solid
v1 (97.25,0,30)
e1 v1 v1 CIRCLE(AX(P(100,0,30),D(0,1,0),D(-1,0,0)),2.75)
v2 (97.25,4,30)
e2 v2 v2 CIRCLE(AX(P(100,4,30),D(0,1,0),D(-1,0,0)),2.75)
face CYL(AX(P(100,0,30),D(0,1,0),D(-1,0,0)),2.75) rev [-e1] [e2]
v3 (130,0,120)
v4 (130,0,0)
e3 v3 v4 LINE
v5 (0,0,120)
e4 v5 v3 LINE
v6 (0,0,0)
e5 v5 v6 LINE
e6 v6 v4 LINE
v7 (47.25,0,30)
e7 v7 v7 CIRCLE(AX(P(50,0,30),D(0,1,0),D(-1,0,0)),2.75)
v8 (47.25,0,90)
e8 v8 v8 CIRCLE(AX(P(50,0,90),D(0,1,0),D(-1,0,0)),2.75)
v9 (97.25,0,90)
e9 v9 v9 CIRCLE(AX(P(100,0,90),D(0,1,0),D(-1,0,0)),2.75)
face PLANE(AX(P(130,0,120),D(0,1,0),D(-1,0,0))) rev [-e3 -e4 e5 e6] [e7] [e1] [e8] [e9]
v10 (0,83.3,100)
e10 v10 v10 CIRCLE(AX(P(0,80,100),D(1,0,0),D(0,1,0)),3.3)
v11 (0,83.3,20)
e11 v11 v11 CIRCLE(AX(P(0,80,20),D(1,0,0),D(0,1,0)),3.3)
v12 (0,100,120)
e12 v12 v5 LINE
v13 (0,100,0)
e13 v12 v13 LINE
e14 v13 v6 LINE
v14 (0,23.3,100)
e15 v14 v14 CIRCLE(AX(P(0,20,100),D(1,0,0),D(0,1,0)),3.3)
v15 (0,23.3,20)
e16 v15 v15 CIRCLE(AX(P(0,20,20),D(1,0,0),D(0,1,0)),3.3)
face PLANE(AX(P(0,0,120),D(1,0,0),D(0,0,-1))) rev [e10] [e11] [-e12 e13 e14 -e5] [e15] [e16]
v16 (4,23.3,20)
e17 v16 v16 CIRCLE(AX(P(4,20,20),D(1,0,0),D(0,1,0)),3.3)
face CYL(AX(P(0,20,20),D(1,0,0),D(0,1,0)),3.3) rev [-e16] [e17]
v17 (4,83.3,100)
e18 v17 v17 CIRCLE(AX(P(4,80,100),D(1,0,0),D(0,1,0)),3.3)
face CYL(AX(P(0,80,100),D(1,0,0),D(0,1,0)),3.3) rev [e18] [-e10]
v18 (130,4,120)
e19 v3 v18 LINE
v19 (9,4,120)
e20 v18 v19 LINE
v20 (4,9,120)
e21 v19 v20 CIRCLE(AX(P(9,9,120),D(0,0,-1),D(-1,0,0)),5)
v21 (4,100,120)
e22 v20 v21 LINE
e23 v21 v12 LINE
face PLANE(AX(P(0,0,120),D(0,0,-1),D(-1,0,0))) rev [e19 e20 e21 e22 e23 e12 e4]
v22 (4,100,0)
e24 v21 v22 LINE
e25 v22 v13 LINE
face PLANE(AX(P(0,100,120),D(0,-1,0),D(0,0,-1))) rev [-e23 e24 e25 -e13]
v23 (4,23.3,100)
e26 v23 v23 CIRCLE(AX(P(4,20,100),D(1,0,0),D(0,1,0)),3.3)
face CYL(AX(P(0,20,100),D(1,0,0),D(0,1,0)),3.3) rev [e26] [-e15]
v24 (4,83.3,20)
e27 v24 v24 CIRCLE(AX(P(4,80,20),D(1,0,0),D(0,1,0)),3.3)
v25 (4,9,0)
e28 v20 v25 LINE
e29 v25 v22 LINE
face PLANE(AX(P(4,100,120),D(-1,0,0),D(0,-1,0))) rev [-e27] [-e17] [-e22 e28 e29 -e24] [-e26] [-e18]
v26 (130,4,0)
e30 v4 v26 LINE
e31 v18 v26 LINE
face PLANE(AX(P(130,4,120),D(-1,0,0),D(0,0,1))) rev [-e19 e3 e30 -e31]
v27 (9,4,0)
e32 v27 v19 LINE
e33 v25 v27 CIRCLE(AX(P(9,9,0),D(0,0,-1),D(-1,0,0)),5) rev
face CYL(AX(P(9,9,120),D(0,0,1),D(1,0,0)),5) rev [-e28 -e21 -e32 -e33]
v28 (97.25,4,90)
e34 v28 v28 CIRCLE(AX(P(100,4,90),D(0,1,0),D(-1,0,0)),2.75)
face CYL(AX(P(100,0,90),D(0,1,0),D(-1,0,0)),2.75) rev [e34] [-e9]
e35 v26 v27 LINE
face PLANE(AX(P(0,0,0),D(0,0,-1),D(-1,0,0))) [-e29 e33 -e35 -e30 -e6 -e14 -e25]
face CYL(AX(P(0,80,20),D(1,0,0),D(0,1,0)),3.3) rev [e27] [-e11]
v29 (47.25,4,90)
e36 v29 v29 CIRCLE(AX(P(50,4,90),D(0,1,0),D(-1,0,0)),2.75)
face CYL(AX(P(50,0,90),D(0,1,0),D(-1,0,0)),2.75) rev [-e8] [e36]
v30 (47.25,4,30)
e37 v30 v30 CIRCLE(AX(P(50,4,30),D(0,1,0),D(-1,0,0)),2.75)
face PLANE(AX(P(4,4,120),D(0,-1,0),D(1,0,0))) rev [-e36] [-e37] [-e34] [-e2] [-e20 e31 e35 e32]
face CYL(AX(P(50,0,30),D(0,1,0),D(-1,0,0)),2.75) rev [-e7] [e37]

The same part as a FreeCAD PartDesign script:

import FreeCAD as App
import Part
import Sketcher
from FreeCAD import Vector
Q = App.Units.Quantity


def edges_at(feature, points):
    """Names of the edges that pass closest to the given points."""
    edges = feature.Shape.Edges
    near = lambda p: min(range(len(edges)), key=lambda i: edges[i].distToShape(Part.Vertex(*p))[0])
    return sorted({f"Edge{near(p) + 1}" for p in points})

doc = App.newDocument("Part")
body = doc.addObject("PartDesign::Body", "Body")

# Sketch on XY plane
sketch1 = doc.addObject("Sketcher::SketchObject", "Sketch")
body.addObject(sketch1)
sketch1.AttachmentSupport = (doc.XY_Plane, [""])
sketch1.MapMode = "FlatFace"
sketch1.addGeometry([
    Part.LineSegment(Vector(0, 100, 0), Vector(0, 0, 0)),  # 0
    Part.LineSegment(Vector(0, 0, 0), Vector(130, 0, 0)),  # 1
    Part.LineSegment(Vector(130, 0, 0), Vector(130, 4, 0)),  # 2
    Part.LineSegment(Vector(130, 4, 0), Vector(4, 4, 0)),  # 3
    Part.LineSegment(Vector(4, 4, 0), Vector(4, 100, 0)),  # 4
    Part.LineSegment(Vector(4, 100, 0), Vector(0, 100, 0)),  # 5
], False)
sketch1.addConstraint([
    Sketcher.Constraint("Coincident", 0, 2, 1, 1),
    Sketcher.Constraint("Coincident", 1, 2, 2, 1),
    Sketcher.Constraint("Coincident", 2, 2, 3, 1),
    Sketcher.Constraint("Coincident", 3, 2, 4, 1),
    Sketcher.Constraint("Coincident", 4, 2, 5, 1),
    Sketcher.Constraint("Coincident", 5, 2, 0, 1),
    Sketcher.Constraint("Vertical", 0),
    Sketcher.Constraint("Horizontal", 1),
    Sketcher.Constraint("Vertical", 2),
    Sketcher.Constraint("Horizontal", 3),
    Sketcher.Constraint("Vertical", 4),
    Sketcher.Constraint("Horizontal", 5),
    Sketcher.Constraint("Coincident", 0, 2, -1, 1),
    Sketcher.Constraint("Equal", 5, 2),
    Sketcher.Constraint("DistanceX", 1, 1, 1, 2, Q("130 mm")),
    Sketcher.Constraint("DistanceX", 3, 2, 3, 1, Q("126 mm")),
    Sketcher.Constraint("DistanceY", 0, 2, 0, 1, Q("100 mm")),
])
pad1 = doc.addObject("PartDesign::Pad", "Pad")
body.addObject(pad1)
pad1.Profile = sketch1
pad1.Length = 120

# Sketch on YZ plane
sketch2 = doc.addObject("Sketcher::SketchObject", "Sketch001")
body.addObject(sketch2)
sketch2.AttachmentSupport = (doc.YZ_Plane, [""])
sketch2.MapMode = "FlatFace"
sketch2.AttachmentOffset = App.Placement(Vector(0, 0, 4), App.Rotation())
sketch2.addGeometry([
    Part.Circle(Vector(80, 100, 0), Vector(0, 0, 1), 3.3),
    Part.Circle(Vector(80, 20, 0), Vector(0, 0, 1), 3.3),
    Part.Circle(Vector(20, 20, 0), Vector(0, 0, 1), 3.3),
    Part.Circle(Vector(20, 100, 0), Vector(0, 0, 1), 3.3),
], False)
sketch2.addConstraint([
    Sketcher.Constraint("Equal", 0, 1),
    Sketcher.Constraint("Equal", 1, 2),
    Sketcher.Constraint("Equal", 2, 3),
    Sketcher.Constraint("Horizontal", 1, 3, 2, 3),
    Sketcher.Constraint("Horizontal", 0, 3, 3, 3),
    Sketcher.Constraint("Vertical", 0, 3, 1, 3),
    Sketcher.Constraint("Vertical", 2, 3, 3, 3),
    Sketcher.Constraint("Diameter", 0, Q("6.6 mm")),
    Sketcher.Constraint("DistanceX", -1, 1, 0, 3, Q("80 mm")),
    Sketcher.Constraint("DistanceY", -1, 1, 0, 3, Q("100 mm")),
    Sketcher.Constraint("DistanceY", -1, 1, 1, 3, Q("20 mm")),
    Sketcher.Constraint("DistanceX", -1, 1, 2, 3, Q("20 mm")),
])
pocket1 = doc.addObject("PartDesign::Pocket", "Pocket")
body.addObject(pocket1)
pocket1.Profile = sketch2
pocket1.Type = "ThroughAll"

# Sketch on XZ plane
sketch3 = doc.addObject("Sketcher::SketchObject", "Sketch002")
body.addObject(sketch3)
sketch3.AttachmentSupport = (doc.XZ_Plane, [""])
sketch3.MapMode = "FlatFace"
sketch3.AttachmentOffset = App.Placement(Vector(0, 0, -4), App.Rotation())
sketch3.addGeometry([
    Part.Circle(Vector(100, 30, 0), Vector(0, 0, 1), 2.8),
    Part.Circle(Vector(50, 30, 0), Vector(0, 0, 1), 2.8),
    Part.Circle(Vector(50, 90, 0), Vector(0, 0, 1), 2.8),
    Part.Circle(Vector(100, 90, 0), Vector(0, 0, 1), 2.8),
], False)
sketch3.addConstraint([
    Sketcher.Constraint("Equal", 0, 1),
    Sketcher.Constraint("Equal", 1, 2),
    Sketcher.Constraint("Equal", 2, 3),
    Sketcher.Constraint("Horizontal", 0, 3, 1, 3),
    Sketcher.Constraint("Horizontal", 2, 3, 3, 3),
    Sketcher.Constraint("Vertical", 1, 3, 2, 3),
    Sketcher.Constraint("Vertical", 0, 3, 3, 3),
    Sketcher.Constraint("Diameter", 0, Q("5.5 mm")),
    Sketcher.Constraint("DistanceX", -1, 1, 0, 3, Q("100 mm")),
    Sketcher.Constraint("DistanceY", -1, 1, 0, 3, Q("30 mm")),
    Sketcher.Constraint("DistanceX", -1, 1, 1, 3, Q("50 mm")),
    Sketcher.Constraint("DistanceY", -1, 1, 2, 3, Q("90 mm")),
])
pocket2 = doc.addObject("PartDesign::Pocket", "Pocket001")
body.addObject(pocket2)
pocket2.Profile = sketch3
pocket2.Type = "ThroughAll"
pocket2.Reversed = True
doc.recompute()

fillet = doc.addObject("PartDesign::Fillet", "Fillet")
body.addObject(fillet)
fillet.Base = (pocket2, edges_at(pocket2, [(4, 4, 60)]))
fillet.Radius = 5

doc.recompute()
